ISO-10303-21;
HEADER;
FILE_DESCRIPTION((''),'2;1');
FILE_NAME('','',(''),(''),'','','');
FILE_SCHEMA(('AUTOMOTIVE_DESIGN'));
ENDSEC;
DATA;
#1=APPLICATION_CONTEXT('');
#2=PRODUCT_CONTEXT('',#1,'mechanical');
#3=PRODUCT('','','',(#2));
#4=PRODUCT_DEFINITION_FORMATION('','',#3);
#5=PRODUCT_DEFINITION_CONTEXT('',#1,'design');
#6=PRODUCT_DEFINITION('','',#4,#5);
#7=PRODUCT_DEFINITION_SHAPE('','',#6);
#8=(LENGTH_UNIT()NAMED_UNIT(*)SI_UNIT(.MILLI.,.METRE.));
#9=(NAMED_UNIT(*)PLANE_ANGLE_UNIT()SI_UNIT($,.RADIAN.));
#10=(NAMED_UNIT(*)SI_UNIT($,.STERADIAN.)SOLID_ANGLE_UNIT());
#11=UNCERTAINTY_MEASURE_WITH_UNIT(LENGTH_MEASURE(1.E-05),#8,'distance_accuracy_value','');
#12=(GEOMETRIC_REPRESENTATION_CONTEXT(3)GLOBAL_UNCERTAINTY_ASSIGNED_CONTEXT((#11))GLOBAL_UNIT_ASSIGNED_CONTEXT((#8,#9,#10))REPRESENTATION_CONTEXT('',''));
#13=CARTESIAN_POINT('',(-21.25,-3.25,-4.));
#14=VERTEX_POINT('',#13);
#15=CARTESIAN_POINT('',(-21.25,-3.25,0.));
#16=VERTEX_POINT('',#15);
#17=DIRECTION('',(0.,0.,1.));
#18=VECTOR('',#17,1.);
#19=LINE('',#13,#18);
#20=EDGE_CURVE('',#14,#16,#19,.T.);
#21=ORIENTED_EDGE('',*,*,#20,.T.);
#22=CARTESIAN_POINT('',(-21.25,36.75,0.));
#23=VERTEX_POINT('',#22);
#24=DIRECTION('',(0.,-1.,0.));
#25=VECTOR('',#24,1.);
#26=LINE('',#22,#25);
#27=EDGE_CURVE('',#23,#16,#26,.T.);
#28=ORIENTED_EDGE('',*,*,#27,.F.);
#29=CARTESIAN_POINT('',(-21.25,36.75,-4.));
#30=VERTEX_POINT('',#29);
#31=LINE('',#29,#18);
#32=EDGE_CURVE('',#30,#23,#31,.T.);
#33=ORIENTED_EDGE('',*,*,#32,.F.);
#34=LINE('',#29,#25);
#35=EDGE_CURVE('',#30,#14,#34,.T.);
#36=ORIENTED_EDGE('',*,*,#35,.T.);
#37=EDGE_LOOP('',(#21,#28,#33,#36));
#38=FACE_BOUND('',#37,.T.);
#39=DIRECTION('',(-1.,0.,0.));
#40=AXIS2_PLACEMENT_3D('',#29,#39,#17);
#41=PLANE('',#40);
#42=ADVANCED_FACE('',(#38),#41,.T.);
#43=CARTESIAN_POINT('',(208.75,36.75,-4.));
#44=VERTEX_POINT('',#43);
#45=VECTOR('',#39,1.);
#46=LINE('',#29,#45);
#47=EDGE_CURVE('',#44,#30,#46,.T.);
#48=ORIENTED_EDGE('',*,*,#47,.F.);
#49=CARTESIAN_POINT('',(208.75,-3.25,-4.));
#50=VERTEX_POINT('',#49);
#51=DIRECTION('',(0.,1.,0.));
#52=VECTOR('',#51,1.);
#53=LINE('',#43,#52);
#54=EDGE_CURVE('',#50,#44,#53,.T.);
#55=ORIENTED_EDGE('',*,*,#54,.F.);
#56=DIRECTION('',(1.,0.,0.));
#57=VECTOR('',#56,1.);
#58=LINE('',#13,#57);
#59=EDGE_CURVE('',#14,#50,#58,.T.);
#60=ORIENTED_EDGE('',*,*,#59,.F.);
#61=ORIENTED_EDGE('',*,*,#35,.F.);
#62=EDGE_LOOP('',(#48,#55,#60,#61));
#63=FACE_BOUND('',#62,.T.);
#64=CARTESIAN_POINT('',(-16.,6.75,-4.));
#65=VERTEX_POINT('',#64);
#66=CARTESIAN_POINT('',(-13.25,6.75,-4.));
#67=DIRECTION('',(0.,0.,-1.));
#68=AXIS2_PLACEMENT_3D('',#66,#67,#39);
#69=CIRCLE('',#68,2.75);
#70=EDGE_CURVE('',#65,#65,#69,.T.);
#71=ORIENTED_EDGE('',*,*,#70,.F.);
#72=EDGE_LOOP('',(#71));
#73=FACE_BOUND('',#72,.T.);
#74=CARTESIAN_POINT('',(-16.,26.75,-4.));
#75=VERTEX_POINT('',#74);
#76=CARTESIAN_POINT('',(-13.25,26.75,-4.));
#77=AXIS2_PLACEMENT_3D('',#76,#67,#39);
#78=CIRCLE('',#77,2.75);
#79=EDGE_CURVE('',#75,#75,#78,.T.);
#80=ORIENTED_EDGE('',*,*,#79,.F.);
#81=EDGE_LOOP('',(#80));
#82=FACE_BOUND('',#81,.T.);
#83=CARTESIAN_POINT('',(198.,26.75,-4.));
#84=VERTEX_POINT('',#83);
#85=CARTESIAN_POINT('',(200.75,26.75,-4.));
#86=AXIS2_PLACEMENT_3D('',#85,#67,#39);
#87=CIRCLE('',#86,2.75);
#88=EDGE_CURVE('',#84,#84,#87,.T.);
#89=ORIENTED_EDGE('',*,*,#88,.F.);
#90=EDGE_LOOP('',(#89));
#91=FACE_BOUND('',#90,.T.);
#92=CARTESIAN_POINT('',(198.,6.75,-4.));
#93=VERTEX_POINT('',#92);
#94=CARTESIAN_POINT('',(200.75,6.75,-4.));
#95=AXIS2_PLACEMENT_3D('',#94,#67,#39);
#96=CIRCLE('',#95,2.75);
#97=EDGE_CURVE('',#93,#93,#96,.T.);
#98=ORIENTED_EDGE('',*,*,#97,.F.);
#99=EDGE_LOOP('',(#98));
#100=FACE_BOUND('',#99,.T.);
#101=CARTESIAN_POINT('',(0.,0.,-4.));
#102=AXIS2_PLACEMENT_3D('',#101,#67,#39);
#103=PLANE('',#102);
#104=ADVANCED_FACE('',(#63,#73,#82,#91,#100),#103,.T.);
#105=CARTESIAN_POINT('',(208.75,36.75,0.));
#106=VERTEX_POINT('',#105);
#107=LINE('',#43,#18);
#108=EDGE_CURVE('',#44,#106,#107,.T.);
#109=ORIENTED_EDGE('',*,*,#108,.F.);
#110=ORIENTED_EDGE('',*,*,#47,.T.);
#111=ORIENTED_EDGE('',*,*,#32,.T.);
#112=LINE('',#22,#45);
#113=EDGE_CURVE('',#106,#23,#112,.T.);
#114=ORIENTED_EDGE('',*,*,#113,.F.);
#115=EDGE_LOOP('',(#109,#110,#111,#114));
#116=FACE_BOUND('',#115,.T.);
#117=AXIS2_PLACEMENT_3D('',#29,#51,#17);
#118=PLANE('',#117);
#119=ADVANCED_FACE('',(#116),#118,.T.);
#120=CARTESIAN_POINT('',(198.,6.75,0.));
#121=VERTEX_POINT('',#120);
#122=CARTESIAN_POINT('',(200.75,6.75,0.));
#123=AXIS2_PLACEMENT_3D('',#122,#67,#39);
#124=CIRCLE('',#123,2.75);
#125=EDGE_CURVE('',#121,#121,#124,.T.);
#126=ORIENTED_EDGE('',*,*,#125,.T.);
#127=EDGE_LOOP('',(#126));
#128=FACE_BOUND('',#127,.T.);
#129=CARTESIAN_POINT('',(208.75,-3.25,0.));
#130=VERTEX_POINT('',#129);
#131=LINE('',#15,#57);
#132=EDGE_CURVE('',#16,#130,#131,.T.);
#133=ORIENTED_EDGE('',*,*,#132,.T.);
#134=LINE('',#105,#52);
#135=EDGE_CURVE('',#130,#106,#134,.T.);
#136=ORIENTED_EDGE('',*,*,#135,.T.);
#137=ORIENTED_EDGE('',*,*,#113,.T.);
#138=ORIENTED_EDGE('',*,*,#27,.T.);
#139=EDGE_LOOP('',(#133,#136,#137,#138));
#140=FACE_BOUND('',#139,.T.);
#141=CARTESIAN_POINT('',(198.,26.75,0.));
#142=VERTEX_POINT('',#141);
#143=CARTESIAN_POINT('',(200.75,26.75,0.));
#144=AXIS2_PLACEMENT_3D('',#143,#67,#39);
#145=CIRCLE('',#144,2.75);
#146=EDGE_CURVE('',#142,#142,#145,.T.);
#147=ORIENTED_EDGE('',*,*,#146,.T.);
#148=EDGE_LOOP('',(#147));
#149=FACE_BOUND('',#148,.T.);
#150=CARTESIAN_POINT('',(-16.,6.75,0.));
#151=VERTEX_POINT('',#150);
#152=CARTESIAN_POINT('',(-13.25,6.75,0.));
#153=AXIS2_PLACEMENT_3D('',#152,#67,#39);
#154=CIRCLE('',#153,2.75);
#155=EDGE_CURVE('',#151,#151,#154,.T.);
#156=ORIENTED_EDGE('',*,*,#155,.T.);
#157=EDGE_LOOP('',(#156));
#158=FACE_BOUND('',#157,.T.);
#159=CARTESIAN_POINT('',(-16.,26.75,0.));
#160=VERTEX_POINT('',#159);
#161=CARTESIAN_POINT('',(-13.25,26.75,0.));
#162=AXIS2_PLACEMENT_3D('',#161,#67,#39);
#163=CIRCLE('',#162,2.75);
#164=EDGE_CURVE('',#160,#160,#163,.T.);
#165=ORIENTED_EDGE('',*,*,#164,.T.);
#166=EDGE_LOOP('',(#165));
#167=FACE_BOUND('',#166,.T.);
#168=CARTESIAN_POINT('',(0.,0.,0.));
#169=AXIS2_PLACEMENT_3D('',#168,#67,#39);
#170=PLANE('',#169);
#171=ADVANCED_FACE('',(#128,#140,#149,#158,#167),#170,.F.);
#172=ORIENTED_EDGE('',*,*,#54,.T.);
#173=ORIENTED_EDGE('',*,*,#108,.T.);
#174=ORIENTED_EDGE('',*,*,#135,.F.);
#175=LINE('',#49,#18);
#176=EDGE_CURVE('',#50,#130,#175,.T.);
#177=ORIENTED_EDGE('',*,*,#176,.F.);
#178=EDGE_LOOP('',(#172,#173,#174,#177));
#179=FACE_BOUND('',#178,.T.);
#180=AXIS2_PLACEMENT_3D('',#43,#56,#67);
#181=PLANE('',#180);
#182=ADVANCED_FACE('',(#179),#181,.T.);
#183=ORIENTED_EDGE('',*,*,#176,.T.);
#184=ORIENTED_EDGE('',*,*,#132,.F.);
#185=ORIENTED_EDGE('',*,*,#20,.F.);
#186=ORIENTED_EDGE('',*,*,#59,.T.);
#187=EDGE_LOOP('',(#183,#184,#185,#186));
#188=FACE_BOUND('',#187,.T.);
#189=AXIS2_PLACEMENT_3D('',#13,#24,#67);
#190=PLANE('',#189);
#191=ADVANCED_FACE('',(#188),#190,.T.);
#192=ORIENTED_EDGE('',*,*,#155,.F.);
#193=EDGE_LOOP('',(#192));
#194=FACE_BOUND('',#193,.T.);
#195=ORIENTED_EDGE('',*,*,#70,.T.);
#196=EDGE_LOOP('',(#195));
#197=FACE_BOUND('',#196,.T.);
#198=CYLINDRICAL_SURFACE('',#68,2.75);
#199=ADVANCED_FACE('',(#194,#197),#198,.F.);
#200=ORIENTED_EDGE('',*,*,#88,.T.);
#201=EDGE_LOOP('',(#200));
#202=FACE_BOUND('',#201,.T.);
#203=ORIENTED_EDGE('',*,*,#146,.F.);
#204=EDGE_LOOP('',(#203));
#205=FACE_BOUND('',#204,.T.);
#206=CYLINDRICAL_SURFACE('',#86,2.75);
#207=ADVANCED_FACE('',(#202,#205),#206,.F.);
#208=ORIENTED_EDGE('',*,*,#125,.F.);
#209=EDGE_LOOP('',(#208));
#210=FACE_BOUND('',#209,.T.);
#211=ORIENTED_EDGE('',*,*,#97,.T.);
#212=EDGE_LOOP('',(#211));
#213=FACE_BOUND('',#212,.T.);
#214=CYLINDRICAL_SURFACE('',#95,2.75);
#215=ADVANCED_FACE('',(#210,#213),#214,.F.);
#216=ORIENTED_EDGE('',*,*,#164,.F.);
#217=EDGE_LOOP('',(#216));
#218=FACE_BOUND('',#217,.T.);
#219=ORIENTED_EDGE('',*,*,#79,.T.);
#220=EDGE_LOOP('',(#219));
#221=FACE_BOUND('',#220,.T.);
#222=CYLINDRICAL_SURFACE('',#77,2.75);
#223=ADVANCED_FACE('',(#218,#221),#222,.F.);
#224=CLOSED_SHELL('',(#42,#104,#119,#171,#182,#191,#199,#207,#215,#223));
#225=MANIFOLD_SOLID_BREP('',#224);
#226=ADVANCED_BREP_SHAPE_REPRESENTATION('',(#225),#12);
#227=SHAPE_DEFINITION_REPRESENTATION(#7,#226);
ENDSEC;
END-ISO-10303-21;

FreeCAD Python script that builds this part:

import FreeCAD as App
import Part
import Sketcher

doc = App.newDocument("Part")
body = doc.addObject("PartDesign::Body", "Body")

# Sketch on XY plane
sketch1 = doc.addObject("Sketcher::SketchObject", "Sketch")
body.addObject(sketch1)
sketch1.AttachmentSupport = (doc.XY_Plane, [""])
sketch1.MapMode = "FlatFace"
sketch1.addGeometry(Part.LineSegment(App.Vector(-21, 37, 0), App.Vector(-21, -3, 0)), False)
sketch1.addGeometry(Part.LineSegment(App.Vector(-21, -3, 0), App.Vector(209, -3, 0)), False)
sketch1.addGeometry(Part.LineSegment(App.Vector(209, -3, 0), App.Vector(209, 37, 0)), False)
sketch1.addGeometry(Part.LineSegment(App.Vector(209, 37, 0), App.Vector(-21, 37, 0)), False)
sketch1.addConstraint(Sketcher.Constraint("Coincident", 0, 2, 1, 1))
sketch1.addConstraint(Sketcher.Constraint("Coincident", 1, 2, 2, 1))
sketch1.addConstraint(Sketcher.Constraint("Coincident", 2, 2, 3, 1))
sketch1.addConstraint(Sketcher.Constraint("Coincident", 3, 2, 0, 1))
sketch1.addConstraint(Sketcher.Constraint("Vertical", 0))
sketch1.addConstraint(Sketcher.Constraint("Horizontal", 1))
sketch1.addConstraint(Sketcher.Constraint("Vertical", 2))
sketch1.addConstraint(Sketcher.Constraint("Horizontal", 3))
sketch1.addConstraint(Sketcher.Constraint("DistanceX", 1, 1, 1, 2, 230.0))
sketch1.addConstraint(Sketcher.Constraint("DistanceY", 0, 2, 0, 1, 40.0))
sketch1.addConstraint(Sketcher.Constraint("DistanceX", 0, 2, -1, 1, 21.25))
sketch1.addConstraint(Sketcher.Constraint("DistanceY", 0, 2, -1, 1, 3.25))
pad1 = doc.addObject("PartDesign::Pad", "Pad")
body.addObject(pad1)
pad1.Profile = sketch1
pad1.Length = 4
pad1.Reversed = True

# Sketch on XY plane
sketch2 = doc.addObject("Sketcher::SketchObject", "Sketch001")
body.addObject(sketch2)
sketch2.AttachmentSupport = (doc.XY_Plane, [""])
sketch2.MapMode = "FlatFace"
sketch2.AttachmentOffset = App.Placement(App.Vector(0, 0, -4), App.Rotation())
sketch2.addGeometry(Part.Circle(App.Vector(200.8, 26.8, 0), App.Vector(0, 0, 1), 2.8), False)
sketch2.addGeometry(Part.Circle(App.Vector(200.8, 6.8, 0), App.Vector(0, 0, 1), 2.8), False)
sketch2.addGeometry(Part.Circle(App.Vector(-13.2, 26.8, 0), App.Vector(0, 0, 1), 2.8), False)
sketch2.addGeometry(Part.Circle(App.Vector(-13.2, 6.8, 0), App.Vector(0, 0, 1), 2.8), False)
sketch2.addConstraint(Sketcher.Constraint("Equal", 0, 1))
sketch2.addConstraint(Sketcher.Constraint("Equal", 1, 2))
sketch2.addConstraint(Sketcher.Constraint("Equal", 2, 3))
sketch2.addConstraint(Sketcher.Constraint("Horizontal", 0, 3, 2, 3))
sketch2.addConstraint(Sketcher.Constraint("Horizontal", 1, 3, 3, 3))
sketch2.addConstraint(Sketcher.Constraint("Vertical", 0, 3, 1, 3))
sketch2.addConstraint(Sketcher.Constraint("Vertical", 2, 3, 3, 3))
sketch2.addConstraint(Sketcher.Constraint("Diameter", 0, 5.5))
sketch2.addConstraint(Sketcher.Constraint("DistanceY", 1, 3, 0, 3, 20.0))
sketch2.addConstraint(Sketcher.Constraint("DistanceX", 2, 3, 0, 3, 214.0))
sketch2.addConstraint(Sketcher.Constraint("DistanceX", -1, 1, 0, 3, 200.75))
sketch2.addConstraint(Sketcher.Constraint("DistanceY", -1, 1, 0, 3, 26.75))
doc.recompute()
hole = doc.addObject("PartDesign::Hole", "Hole")
body.addObject(hole)
hole.Profile = sketch2
hole.ThreadType = "None"
hole.Diameter = 5.5
hole.DepthType = "ThroughAll"
hole.Reversed = True

doc.recompute()
